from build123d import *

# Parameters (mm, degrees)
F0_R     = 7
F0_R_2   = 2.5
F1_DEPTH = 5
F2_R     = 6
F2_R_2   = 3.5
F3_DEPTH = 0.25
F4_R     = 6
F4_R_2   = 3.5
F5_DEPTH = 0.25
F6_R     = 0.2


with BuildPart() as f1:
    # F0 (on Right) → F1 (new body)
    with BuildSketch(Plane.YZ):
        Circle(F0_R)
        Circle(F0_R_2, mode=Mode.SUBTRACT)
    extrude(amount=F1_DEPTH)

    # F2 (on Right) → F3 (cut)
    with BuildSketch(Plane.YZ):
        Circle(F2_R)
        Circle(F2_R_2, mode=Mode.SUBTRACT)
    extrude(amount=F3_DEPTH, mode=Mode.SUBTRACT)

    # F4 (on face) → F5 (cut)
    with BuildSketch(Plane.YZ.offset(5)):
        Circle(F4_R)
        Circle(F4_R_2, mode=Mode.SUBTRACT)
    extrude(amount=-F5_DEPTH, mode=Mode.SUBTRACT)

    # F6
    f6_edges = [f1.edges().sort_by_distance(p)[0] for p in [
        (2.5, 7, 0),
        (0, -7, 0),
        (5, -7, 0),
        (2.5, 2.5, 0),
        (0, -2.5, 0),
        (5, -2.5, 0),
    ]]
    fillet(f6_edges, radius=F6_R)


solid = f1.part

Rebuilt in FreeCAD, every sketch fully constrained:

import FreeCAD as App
import Part
import Sketcher

V = App.Vector


def edges_at(feature, points):
    """Names of the edges that pass closest to the given points."""
    edges = feature.Shape.Edges
    near = lambda p: min(range(len(edges)), key=lambda i: edges[i].distToShape(Part.Vertex(*p))[0])
    return sorted({f"Edge{near(p) + 1}" for p in points})

doc = App.newDocument("Part")
body = doc.addObject("PartDesign::Body", "Body")

# Sketch on YZ plane
sketch1 = body.newObject("Sketcher::SketchObject", "Sketch")
sketch1.AttachmentSupport = (doc.getObject("YZ_Plane"), [""])
sketch1.MapMode = "FlatFace"
sketch1.addGeometry([
    Part.Circle(V(0, 0, 0), V(0, 0, 1), 7),
    Part.Circle(V(0, 0, 0), V(0, 0, 1), 2.5),
], False)
sketch1.addConstraint([
    Sketcher.Constraint("Coincident", 0, 3, -1, 1),
    Sketcher.Constraint("Coincident", 1, 3, -1, 1),
    Sketcher.Constraint("Diameter", 0, 14.0),
    Sketcher.Constraint("Diameter", 1, 5.0),
])
pad1 = body.newObject("PartDesign::Pad", "Pad")
pad1.Profile = sketch1
pad1.Length = 5

# Sketch on YZ plane
sketch2 = body.newObject("Sketcher::SketchObject", "Sketch001")
sketch2.AttachmentSupport = (doc.getObject("YZ_Plane"), [""])
sketch2.MapMode = "FlatFace"
sketch2.addGeometry([
    Part.Circle(V(0, 0, 0), V(0, 0, 1), 6),
    Part.Circle(V(0, 0, 0), V(0, 0, 1), 3.5),
], False)
sketch2.addConstraint([
    Sketcher.Constraint("Coincident", 0, 3, -1, 1),
    Sketcher.Constraint("Coincident", 1, 3, -1, 1),
    Sketcher.Constraint("Diameter", 0, 12.0),
    Sketcher.Constraint("Diameter", 1, 7.0),
])
pocket1 = body.newObject("PartDesign::Pocket", "Pocket")
pocket1.Profile = sketch2
pocket1.Length = 0.25
pocket1.Reversed = True

# Sketch on YZ plane
sketch3 = body.newObject("Sketcher::SketchObject", "Sketch002")
sketch3.AttachmentSupport = (doc.getObject("YZ_Plane"), [""])
sketch3.MapMode = "FlatFace"
sketch3.AttachmentOffset = App.Placement(V(0, 0, 5), App.Rotation())
sketch3.addGeometry([
    Part.Circle(V(0, 0, 0), V(0, 0, 1), 6),
    Part.Circle(V(0, 0, 0), V(0, 0, 1), 3.5),
], False)
sketch3.addConstraint([
    Sketcher.Constraint("Coincident", 0, 3, -1, 1),
    Sketcher.Constraint("Coincident", 1, 3, -1, 1),
    Sketcher.Constraint("Diameter", 0, 12.0),
    Sketcher.Constraint("Diameter", 1, 7.0),
])
pocket2 = body.newObject("PartDesign::Pocket", "Pocket001")
pocket2.Profile = sketch3
pocket2.Length = 0.25
doc.recompute()

fillet = body.newObject("PartDesign::Fillet", "Fillet")
fillet.Base = (pocket2, edges_at(pocket2, [
    (2.5, 7, 0),
    (0, -7, 0),
    (5, -7, 0),
    (2.5, 2.5, 0),
    (0, -2.5, 0),
    (5, -2.5, 0),
]))
fillet.Radius = 0.2

doc.recompute()
